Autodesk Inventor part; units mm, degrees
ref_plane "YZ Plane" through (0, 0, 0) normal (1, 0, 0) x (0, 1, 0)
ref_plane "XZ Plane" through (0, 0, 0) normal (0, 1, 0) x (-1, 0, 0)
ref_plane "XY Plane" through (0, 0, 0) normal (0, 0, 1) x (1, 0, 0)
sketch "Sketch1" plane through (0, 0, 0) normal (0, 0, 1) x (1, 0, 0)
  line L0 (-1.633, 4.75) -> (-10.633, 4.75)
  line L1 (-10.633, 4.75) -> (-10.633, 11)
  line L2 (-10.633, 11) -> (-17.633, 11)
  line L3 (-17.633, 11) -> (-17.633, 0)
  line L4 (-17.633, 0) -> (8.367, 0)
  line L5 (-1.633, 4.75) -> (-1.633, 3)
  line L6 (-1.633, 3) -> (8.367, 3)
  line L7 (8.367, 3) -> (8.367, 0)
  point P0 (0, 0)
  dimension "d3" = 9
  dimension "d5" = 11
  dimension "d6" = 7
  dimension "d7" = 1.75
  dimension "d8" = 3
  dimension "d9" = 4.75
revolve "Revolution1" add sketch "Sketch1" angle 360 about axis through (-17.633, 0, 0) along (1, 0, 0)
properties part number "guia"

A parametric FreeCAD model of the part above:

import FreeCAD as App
import Part
import Sketcher


def add_polygon(sketch, points):
    """Adds a closed chain of lines whose ends are joined by coincident constraints."""
    first, n = sketch.GeometryCount, len(points)
    for a, b in zip(points, points[1:] + points[:1]):
        sketch.addGeometry(Part.LineSegment(App.Vector(*a, 0), App.Vector(*b, 0)), False)
    for i in range(n):
        sketch.addConstraint(Sketcher.Constraint("Coincident", first + i, 2, first + (i + 1) % n, 1))

doc = App.newDocument("Part")
body = doc.addObject("PartDesign::Body", "Body")

sketch1 = body.newObject("Sketcher::SketchObject", "Sketch")
sketch1.AttachmentSupport = (doc.getObject("XY_Plane"), [""])
sketch1.MapMode = "FlatFace"
add_polygon(sketch1, [(-1.6, 3), (-1.6, 4.8), (-10.6, 4.8), (-10.6, 11), (-17.6, 11), (-17.6, 0), (8.4, 0), (8.4, 3)])
sketch1.addConstraint(Sketcher.Constraint("Vertical", 0))
sketch1.addConstraint(Sketcher.Constraint("Horizontal", 1))
sketch1.addConstraint(Sketcher.Constraint("Vertical", 2))
sketch1.addConstraint(Sketcher.Constraint("Horizontal", 3))
sketch1.addConstraint(Sketcher.Constraint("Vertical", 4))
sketch1.addConstraint(Sketcher.Constraint("Horizontal", 5))
sketch1.addConstraint(Sketcher.Constraint("Vertical", 6))
sketch1.addConstraint(Sketcher.Constraint("Horizontal", 7))
sketch1.addConstraint(Sketcher.Constraint("PointOnObject", 4, 2, -1))
sketch1.addConstraint(Sketcher.Constraint("DistanceX", 1, 2, 1, 1, 9.0))
sketch1.addConstraint(Sketcher.Constraint("DistanceX", 3, 2, 3, 1, 7.0))
sketch1.addConstraint(Sketcher.Constraint("DistanceY", 4, 2, 4, 1, 11.0))
sketch1.addConstraint(Sketcher.Constraint("DistanceY", 6, 1, 6, 2, 3.0))
sketch1.addConstraint(Sketcher.Constraint("DistanceY", 0, 1, 0, 2, 1.75))
sketch1.addConstraint(Sketcher.Constraint("DistanceX", 5, 1, 5, 2, 26.0))
sketch1.addConstraint(Sketcher.Constraint("DistanceX", 0, 2, -1, 1, 1.633))
revolution = body.newObject("PartDesign::Revolution", "Revolution")
revolution.Profile = sketch1
revolution.ReferenceAxis = (sketch1, ["H_Axis"])
revolution.Angle = 360

doc.recompute()
